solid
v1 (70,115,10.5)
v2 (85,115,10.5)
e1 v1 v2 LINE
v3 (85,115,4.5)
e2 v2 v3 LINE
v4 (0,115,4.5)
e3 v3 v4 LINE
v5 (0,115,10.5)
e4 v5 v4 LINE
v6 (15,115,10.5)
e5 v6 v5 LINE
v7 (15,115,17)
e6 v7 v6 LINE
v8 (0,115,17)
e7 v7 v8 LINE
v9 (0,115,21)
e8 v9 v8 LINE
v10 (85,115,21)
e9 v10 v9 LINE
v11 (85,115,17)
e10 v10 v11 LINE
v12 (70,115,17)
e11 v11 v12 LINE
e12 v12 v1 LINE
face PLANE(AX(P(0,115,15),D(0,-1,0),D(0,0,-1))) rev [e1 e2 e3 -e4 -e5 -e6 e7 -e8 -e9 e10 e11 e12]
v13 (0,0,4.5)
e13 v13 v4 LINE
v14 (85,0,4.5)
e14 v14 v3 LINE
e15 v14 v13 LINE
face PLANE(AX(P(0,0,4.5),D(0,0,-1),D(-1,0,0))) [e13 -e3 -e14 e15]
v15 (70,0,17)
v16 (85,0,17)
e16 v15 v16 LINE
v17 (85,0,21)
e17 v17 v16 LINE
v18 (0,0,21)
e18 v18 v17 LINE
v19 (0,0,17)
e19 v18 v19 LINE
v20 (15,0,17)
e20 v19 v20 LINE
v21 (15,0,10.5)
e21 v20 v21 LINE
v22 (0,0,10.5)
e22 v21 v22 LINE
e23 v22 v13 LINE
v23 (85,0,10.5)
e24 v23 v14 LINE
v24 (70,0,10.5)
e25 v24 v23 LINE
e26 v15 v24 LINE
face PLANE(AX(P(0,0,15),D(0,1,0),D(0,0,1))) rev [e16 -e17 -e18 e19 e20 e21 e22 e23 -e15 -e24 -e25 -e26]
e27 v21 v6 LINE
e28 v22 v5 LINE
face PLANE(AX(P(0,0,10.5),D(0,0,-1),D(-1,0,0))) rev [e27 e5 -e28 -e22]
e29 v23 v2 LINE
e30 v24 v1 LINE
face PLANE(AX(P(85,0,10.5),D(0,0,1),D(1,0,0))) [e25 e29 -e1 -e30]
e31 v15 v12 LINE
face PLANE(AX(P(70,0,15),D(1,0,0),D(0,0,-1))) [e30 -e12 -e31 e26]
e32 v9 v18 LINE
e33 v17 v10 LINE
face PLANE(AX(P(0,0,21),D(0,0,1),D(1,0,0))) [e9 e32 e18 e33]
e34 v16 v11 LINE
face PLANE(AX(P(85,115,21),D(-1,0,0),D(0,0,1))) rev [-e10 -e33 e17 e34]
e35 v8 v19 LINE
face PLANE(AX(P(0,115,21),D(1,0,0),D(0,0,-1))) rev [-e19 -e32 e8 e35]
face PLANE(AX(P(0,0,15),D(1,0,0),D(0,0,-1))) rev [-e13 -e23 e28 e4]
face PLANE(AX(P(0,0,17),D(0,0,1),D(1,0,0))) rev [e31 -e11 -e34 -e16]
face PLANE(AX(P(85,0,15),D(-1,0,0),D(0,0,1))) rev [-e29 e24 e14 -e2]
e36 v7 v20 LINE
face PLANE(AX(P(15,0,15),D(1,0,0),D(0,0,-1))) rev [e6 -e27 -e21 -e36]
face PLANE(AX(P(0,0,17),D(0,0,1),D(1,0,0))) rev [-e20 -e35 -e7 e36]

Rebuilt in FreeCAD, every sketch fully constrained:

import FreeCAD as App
import Part
import Sketcher

V = App.Vector
Q = App.Units.Quantity

doc = App.newDocument("Part")
params = doc.addObject("Spreadsheet::Sheet", "Params")
for row, (alias, value) in enumerate([
    ("sketch1_width", "85 mm"),
    ("sketch1_height", "115 mm"),
    ("pad1_length", "15 mm"),
    ("sketch2_width", "15 mm"),
    ("sketch2_height", "4.5 mm"),
    ("sketch3_width", "15 mm"),
    ("sketch3_height", "4.5 mm"),
    ("sketch4_width", "55 mm"),
    ("sketch4_height", "115 mm"),
    ("pad2_length", "2 mm"),
    ("sketch5_width", "55 mm"),
    ("sketch5_height", "115 mm"),
    ("pocket3_length", "4.5 mm"),
    ("sketch6_width", "85 mm"),
    ("sketch6_height", "115 mm"),
    ("pad3_length", "4 mm"),
], start=1):
    params.set(f"A{row}", alias)
    params.set(f"B{row}", "=" + value)
    params.setAlias(f"B{row}", alias)

body = doc.addObject("PartDesign::Body", "Body")

# Sketch on XY plane
sketch1 = body.newObject("Sketcher::SketchObject", "Sketch")
sketch1.AttachmentSupport = (doc.getObject("XY_Plane"), [""])
sketch1.MapMode = "FlatFace"
sketch1.addGeometry([
    Part.LineSegment(V(0, 115, 0), V(0, 0, 0)),
    Part.LineSegment(V(0, 0, 0), V(85, 0, 0)),
    Part.LineSegment(V(85, 0, 0), V(85, 115, 0)),
    Part.LineSegment(V(85, 115, 0), V(0, 115, 0)),
], False)
sketch1.addConstraint([
    Sketcher.Constraint("Coincident", 0, 2, 1, 1),
    Sketcher.Constraint("Coincident", 1, 2, 2, 1),
    Sketcher.Constraint("Coincident", 2, 2, 3, 1),
    Sketcher.Constraint("Coincident", 3, 2, 0, 1),
    Sketcher.Constraint("Vertical", 0),
    Sketcher.Constraint("Horizontal", 1),
    Sketcher.Constraint("Vertical", 2),
    Sketcher.Constraint("Horizontal", 3),
    Sketcher.Constraint("Coincident", 0, 2, -1, 1),
    Sketcher.Constraint("DistanceX", 1, 1, 1, 2, Q("85 mm")),
    Sketcher.Constraint("DistanceY", 0, 2, 0, 1, Q("115 mm")),
])
sketch1.setExpression("Constraints[9]", "Params.sketch1_width")
sketch1.setExpression("Constraints[10]", "Params.sketch1_height")
pad1 = body.newObject("PartDesign::Pad", "Pad")
pad1.Profile = sketch1
pad1.setExpression("Length", "Params.pad1_length")

# Sketch on XZ plane
sketch2 = body.newObject("Sketcher::SketchObject", "Sketch001")
sketch2.AttachmentSupport = (doc.getObject("XZ_Plane"), [""])
sketch2.MapMode = "FlatFace"
sketch2.AttachmentOffset = App.Placement(V(0, 0, -115), App.Rotation())
sketch2.addGeometry([
    Part.LineSegment(V(0, 10.5, 0), V(0, 15, 0)),
    Part.LineSegment(V(0, 15, 0), V(15, 15, 0)),
    Part.LineSegment(V(15, 15, 0), V(15, 10.5, 0)),
    Part.LineSegment(V(15, 10.5, 0), V(0, 10.5, 0)),
], False)
sketch2.addConstraint([
    Sketcher.Constraint("Coincident", 0, 2, 1, 1),
    Sketcher.Constraint("Coincident", 1, 2, 2, 1),
    Sketcher.Constraint("Coincident", 2, 2, 3, 1),
    Sketcher.Constraint("Coincident", 3, 2, 0, 1),
    Sketcher.Constraint("Vertical", 0),
    Sketcher.Constraint("Horizontal", 1),
    Sketcher.Constraint("Vertical", 2),
    Sketcher.Constraint("Horizontal", 3),
    Sketcher.Constraint("PointOnObject", 0, 2, -2),
    Sketcher.Constraint("DistanceX", 1, 1, 1, 2, Q("15 mm")),
    Sketcher.Constraint("DistanceY", 0, 1, 0, 2, Q("4.5 mm")),
    Sketcher.Constraint("DistanceY", -1, 1, 0, 2, Q("15 mm")),
])
sketch2.setExpression("Constraints[9]", "Params.sketch2_width")
sketch2.setExpression("Constraints[10]", "Params.sketch2_height")
pocket1 = body.newObject("PartDesign::Pocket", "Pocket")
pocket1.Profile = sketch2
pocket1.Type = "ThroughAll"
pocket1.Reversed = True
doc.recompute()

datumplane = body.newObject("PartDesign::Plane", "DatumPlane")
datumplane.AttachmentSupport = (doc.getObject("XY_Plane"), [""])
datumplane.MapMode = "FlatFace"
datumplane.AttachmentOffset = App.Placement(V(0, 0, 7.5), App.Rotation())
mirrored = body.newObject("PartDesign::Mirrored", "Mirrored")
mirrored.Originals = [pocket1]
mirrored.MirrorPlane = (datumplane, [""])
body.Tip = mirrored
doc.recompute()

datumplane2 = body.newObject("PartDesign::Plane", "DatumPlane001")
datumplane2.AttachmentSupport = (doc.getObject("YZ_Plane"), [""])
datumplane2.MapMode = "FlatFace"
datumplane2.AttachmentOffset = App.Placement(V(0, 0, 42.5), App.Rotation())
mirrored2 = body.newObject("PartDesign::Mirrored", "Mirrored001")
mirrored2.Originals = [pocket1]
mirrored2.MirrorPlane = (datumplane2, [""])
body.Tip = mirrored2

# Sketch on XZ plane
sketch3 = body.newObject("Sketcher::SketchObject", "Sketch002")
sketch3.AttachmentSupport = (doc.getObject("XZ_Plane"), [""])
sketch3.MapMode = "FlatFace"
sketch3.AttachmentOffset = App.Placement(V(0, 0, -115), App.Rotation())
sketch3.addGeometry([
    Part.LineSegment(V(85, 4.5, 0), V(85, 0, 0)),
    Part.LineSegment(V(85, 0, 0), V(70, 0, 0)),
    Part.LineSegment(V(70, 0, 0), V(70, 4.5, 0)),
    Part.LineSegment(V(70, 4.5, 0), V(85, 4.5, 0)),
], False)
sketch3.addConstraint([
    Sketcher.Constraint("Coincident", 0, 2, 1, 1),
    Sketcher.Constraint("Coincident", 1, 2, 2, 1),
    Sketcher.Constraint("Coincident", 2, 2, 3, 1),
    Sketcher.Constraint("Coincident", 3, 2, 0, 1),
    Sketcher.Constraint("Vertical", 0),
    Sketcher.Constraint("Horizontal", 1),
    Sketcher.Constraint("Vertical", 2),
    Sketcher.Constraint("Horizontal", 3),
    Sketcher.Constraint("PointOnObject", 0, 2, -1),
    Sketcher.Constraint("DistanceX", 1, 2, 1, 1, Q("15 mm")),
    Sketcher.Constraint("DistanceY", 0, 2, 0, 1, Q("4.5 mm")),
    Sketcher.Constraint("DistanceX", -1, 1, 0, 2, Q("85 mm")),
])
sketch3.setExpression("Constraints[9]", "Params.sketch3_width")
sketch3.setExpression("Constraints[10]", "Params.sketch3_height")
pocket2 = body.newObject("PartDesign::Pocket", "Pocket001")
pocket2.Profile = sketch3
pocket2.Type = "ThroughAll"
pocket2.Reversed = True

# Sketch on XY plane
sketch4 = body.newObject("Sketcher::SketchObject", "Sketch003")
sketch4.AttachmentSupport = (doc.getObject("XY_Plane"), [""])
sketch4.MapMode = "FlatFace"
sketch4.AttachmentOffset = App.Placement(V(0, 0, 15), App.Rotation())
sketch4.addGeometry([
    Part.LineSegment(V(15, 115, 0), V(15, 0, 0)),
    Part.LineSegment(V(15, 0, 0), V(70, 0, 0)),
    Part.LineSegment(V(70, 0, 0), V(70, 115, 0)),
    Part.LineSegment(V(70, 115, 0), V(15, 115, 0)),
], False)
sketch4.addConstraint([
    Sketcher.Constraint("Coincident", 0, 2, 1, 1),
    Sketcher.Constraint("Coincident", 1, 2, 2, 1),
    Sketcher.Constraint("Coincident", 2, 2, 3, 1),
    Sketcher.Constraint("Coincident", 3, 2, 0, 1),
    Sketcher.Constraint("Vertical", 0),
    Sketcher.Constraint("Horizontal", 1),
    Sketcher.Constraint("Vertical", 2),
    Sketcher.Constraint("Horizontal", 3),
    Sketcher.Constraint("PointOnObject", 0, 2, -1),
    Sketcher.Constraint("DistanceX", 1, 1, 1, 2, Q("55 mm")),
    Sketcher.Constraint("DistanceY", 0, 2, 0, 1, Q("115 mm")),
    Sketcher.Constraint("DistanceX", -1, 1, 0, 2, Q("15 mm")),
])
sketch4.setExpression("Constraints[9]", "Params.sketch4_width")
sketch4.setExpression("Constraints[10]", "Params.sketch4_height")
pad2 = body.newObject("PartDesign::Pad", "Pad001")
pad2.Profile = sketch4
pad2.setExpression("Length", "Params.pad2_length")

# Sketch on XY plane
sketch5 = body.newObject("Sketcher::SketchObject", "Sketch004")
sketch5.AttachmentSupport = (doc.getObject("XY_Plane"), [""])
sketch5.MapMode = "FlatFace"
sketch5.addGeometry([
    Part.LineSegment(V(70, 115, 0), V(70, 0, 0)),
    Part.LineSegment(V(70, 0, 0), V(15, 0, 0)),
    Part.LineSegment(V(15, 0, 0), V(15, 115, 0)),
    Part.LineSegment(V(15, 115, 0), V(70, 115, 0)),
], False)
sketch5.addConstraint([
    Sketcher.Constraint("Coincident", 0, 2, 1, 1),
    Sketcher.Constraint("Coincident", 1, 2, 2, 1),
    Sketcher.Constraint("Coincident", 2, 2, 3, 1),
    Sketcher.Constraint("Coincident", 3, 2, 0, 1),
    Sketcher.Constraint("Vertical", 0),
    Sketcher.Constraint("Horizontal", 1),
    Sketcher.Constraint("Vertical", 2),
    Sketcher.Constraint("Horizontal", 3),
    Sketcher.Constraint("PointOnObject", 0, 2, -1),
    Sketcher.Constraint("DistanceX", 1, 2, 1, 1, Q("55 mm")),
    Sketcher.Constraint("DistanceY", 0, 2, 0, 1, Q("115 mm")),
    Sketcher.Constraint("DistanceX", -1, 1, 0, 2, Q("70 mm")),
])
sketch5.setExpression("Constraints[9]", "Params.sketch5_width")
sketch5.setExpression("Constraints[10]", "Params.sketch5_height")
pocket3 = body.newObject("PartDesign::Pocket", "Pocket002")
pocket3.Profile = sketch5
pocket3.setExpression("Length", "Params.pocket3_length")
pocket3.Reversed = True

# Sketch on XY plane
sketch6 = body.newObject("Sketcher::SketchObject", "Sketch005")
sketch6.AttachmentSupport = (doc.getObject("XY_Plane"), [""])
sketch6.MapMode = "FlatFace"
sketch6.AttachmentOffset = App.Placement(V(0, 0, 17), App.Rotation())
sketch6.addGeometry([
    Part.LineSegment(V(0, 115, 0), V(0, 0, 0)),
    Part.LineSegment(V(0, 0, 0), V(85, 0, 0)),
    Part.LineSegment(V(85, 0, 0), V(85, 115, 0)),
    Part.LineSegment(V(85, 115, 0), V(0, 115, 0)),
], False)
sketch6.addConstraint([
    Sketcher.Constraint("Coincident", 0, 2, 1, 1),
    Sketcher.Constraint("Coincident", 1, 2, 2, 1),
    Sketcher.Constraint("Coincident", 2, 2, 3, 1),
    Sketcher.Constraint("Coincident", 3, 2, 0, 1),
    Sketcher.Constraint("Vertical", 0),
    Sketcher.Constraint("Horizontal", 1),
    Sketcher.Constraint("Vertical", 2),
    Sketcher.Constraint("Horizontal", 3),
    Sketcher.Constraint("Coincident", 0, 2, -1, 1),
    Sketcher.Constraint("DistanceX", 1, 1, 1, 2, Q("85 mm")),
    Sketcher.Constraint("DistanceY", 0, 2, 0, 1, Q("115 mm")),
])
sketch6.setExpression("Constraints[9]", "Params.sketch6_width")
sketch6.setExpression("Constraints[10]", "Params.sketch6_height")
pad3 = body.newObject("PartDesign::Pad", "Pad002")
pad3.Profile = sketch6
pad3.setExpression("Length", "Params.pad3_length")

doc.recompute()
